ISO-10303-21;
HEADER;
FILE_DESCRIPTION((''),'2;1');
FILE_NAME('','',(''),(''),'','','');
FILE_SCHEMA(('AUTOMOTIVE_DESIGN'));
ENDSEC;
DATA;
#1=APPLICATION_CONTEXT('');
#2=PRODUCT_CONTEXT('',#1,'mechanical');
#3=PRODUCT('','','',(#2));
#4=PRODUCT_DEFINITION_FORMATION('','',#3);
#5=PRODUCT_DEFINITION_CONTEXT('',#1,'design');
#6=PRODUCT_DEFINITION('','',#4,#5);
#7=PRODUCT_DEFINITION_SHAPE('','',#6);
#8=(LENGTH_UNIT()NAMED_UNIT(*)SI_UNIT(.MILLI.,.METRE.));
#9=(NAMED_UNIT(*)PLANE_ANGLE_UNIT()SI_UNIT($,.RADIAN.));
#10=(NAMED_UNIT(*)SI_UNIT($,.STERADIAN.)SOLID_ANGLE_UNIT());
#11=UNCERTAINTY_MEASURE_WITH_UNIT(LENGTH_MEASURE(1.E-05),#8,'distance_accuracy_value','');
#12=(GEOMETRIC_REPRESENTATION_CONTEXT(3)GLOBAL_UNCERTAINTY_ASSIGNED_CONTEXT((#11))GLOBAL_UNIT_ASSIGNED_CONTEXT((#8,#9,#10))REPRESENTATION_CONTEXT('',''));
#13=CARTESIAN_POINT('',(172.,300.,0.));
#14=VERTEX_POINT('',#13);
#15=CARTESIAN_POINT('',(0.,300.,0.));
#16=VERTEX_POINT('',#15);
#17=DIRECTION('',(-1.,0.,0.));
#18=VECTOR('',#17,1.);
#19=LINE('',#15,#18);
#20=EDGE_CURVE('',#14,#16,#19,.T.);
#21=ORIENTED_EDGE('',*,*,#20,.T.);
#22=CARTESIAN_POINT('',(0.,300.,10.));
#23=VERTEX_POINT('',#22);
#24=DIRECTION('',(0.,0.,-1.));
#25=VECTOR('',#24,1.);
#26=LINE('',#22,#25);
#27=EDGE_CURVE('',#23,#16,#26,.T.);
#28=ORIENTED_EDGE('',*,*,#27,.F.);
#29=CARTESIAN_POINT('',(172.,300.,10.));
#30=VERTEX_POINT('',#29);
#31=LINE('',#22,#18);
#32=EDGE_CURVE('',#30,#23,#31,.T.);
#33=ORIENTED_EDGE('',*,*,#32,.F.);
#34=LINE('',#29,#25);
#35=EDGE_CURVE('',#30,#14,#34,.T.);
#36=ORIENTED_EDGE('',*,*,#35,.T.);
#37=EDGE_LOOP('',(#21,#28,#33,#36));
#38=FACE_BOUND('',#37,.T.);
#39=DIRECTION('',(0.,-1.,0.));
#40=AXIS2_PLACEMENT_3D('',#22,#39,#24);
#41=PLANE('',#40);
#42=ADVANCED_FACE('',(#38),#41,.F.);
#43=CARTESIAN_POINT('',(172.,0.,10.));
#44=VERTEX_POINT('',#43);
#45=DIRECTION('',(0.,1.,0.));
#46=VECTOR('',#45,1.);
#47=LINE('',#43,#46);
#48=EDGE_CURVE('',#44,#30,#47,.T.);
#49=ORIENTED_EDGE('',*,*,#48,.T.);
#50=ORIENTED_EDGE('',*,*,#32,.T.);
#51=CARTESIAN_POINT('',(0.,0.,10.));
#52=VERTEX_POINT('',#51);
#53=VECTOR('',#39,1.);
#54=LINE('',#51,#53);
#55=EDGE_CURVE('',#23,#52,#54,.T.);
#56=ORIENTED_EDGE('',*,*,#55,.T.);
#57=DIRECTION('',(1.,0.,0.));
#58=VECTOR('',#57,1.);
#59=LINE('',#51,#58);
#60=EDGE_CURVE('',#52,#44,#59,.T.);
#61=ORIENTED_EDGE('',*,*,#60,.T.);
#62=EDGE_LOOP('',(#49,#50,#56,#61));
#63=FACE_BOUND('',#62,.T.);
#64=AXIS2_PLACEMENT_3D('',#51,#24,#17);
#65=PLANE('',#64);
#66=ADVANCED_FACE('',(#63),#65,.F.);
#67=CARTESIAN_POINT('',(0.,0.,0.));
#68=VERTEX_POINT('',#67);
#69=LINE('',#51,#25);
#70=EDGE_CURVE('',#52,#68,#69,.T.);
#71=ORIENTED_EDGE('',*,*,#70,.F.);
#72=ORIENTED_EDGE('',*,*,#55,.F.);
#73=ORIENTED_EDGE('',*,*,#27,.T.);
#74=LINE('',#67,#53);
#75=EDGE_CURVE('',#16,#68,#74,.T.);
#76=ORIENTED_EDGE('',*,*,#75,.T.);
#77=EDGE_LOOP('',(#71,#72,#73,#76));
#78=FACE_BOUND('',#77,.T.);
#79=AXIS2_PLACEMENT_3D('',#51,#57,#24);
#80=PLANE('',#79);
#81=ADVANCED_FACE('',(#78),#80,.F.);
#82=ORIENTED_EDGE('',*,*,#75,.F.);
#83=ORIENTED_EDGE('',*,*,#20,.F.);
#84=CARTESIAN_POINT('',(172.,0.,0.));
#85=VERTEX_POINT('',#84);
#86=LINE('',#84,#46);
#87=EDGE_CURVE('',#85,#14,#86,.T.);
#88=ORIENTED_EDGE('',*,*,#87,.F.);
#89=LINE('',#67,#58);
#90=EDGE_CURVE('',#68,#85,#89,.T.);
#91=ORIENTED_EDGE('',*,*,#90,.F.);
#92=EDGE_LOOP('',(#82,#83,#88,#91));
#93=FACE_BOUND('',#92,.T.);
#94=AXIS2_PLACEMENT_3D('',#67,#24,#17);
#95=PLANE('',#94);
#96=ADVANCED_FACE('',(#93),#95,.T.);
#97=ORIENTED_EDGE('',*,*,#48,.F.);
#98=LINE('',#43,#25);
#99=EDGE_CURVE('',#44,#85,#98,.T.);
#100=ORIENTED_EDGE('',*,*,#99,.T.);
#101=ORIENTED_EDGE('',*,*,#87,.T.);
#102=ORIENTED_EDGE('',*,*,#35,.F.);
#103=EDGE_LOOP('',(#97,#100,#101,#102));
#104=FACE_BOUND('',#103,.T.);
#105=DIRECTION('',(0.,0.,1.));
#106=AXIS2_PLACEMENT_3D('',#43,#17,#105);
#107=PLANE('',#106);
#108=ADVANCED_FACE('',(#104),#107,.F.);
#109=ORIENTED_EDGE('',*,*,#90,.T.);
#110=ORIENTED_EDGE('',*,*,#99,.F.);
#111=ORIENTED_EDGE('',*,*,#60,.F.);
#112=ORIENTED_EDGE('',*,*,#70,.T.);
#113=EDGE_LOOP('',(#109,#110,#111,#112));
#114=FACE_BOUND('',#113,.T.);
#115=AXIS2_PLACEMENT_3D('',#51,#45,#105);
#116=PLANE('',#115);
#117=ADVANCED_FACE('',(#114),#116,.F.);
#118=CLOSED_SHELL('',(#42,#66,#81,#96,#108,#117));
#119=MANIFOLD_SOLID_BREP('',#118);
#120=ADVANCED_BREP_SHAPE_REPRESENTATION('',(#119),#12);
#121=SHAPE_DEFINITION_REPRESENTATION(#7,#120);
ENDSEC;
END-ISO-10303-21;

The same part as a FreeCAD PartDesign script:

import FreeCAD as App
import Part
import Sketcher
Q = App.Units.Quantity


def add_polygon(sketch, points):
    """Adds a closed chain of lines whose ends are joined by coincident constraints."""
    first, n = sketch.GeometryCount, len(points)
    for a, b in zip(points, points[1:] + points[:1]):
        sketch.addGeometry(Part.LineSegment(App.Vector(*a, 0), App.Vector(*b, 0)), False)
    for i in range(n):
        sketch.addConstraint(Sketcher.Constraint("Coincident", first + i, 2, first + (i + 1) % n, 1))

doc = App.newDocument("Part")
body = doc.addObject("PartDesign::Body", "Body")

# Sketch on XY plane
sketch1 = body.newObject("Sketcher::SketchObject", "Sketch")
sketch1.AttachmentSupport = (doc.getObject("XY_Plane"), [""])
sketch1.MapMode = "FlatFace"
add_polygon(sketch1, [(0, 300), (0, 0), (172, 0), (172, 300)])  # lines 0-3
sketch1.addConstraint([
    Sketcher.Constraint("Vertical", 0),
    Sketcher.Constraint("Horizontal", 1),
    Sketcher.Constraint("Vertical", 2),
    Sketcher.Constraint("Horizontal", 3),
    Sketcher.Constraint("Coincident", 0, 2, -1, 1),
    Sketcher.Constraint("DistanceX", 1, 1, 1, 2, Q("172 mm")),
    Sketcher.Constraint("DistanceY", 0, 2, 0, 1, Q("300 mm")),
])
pad1 = body.newObject("PartDesign::Pad", "Pad")
pad1.Profile = sketch1
pad1.Length = 10

doc.recompute()
